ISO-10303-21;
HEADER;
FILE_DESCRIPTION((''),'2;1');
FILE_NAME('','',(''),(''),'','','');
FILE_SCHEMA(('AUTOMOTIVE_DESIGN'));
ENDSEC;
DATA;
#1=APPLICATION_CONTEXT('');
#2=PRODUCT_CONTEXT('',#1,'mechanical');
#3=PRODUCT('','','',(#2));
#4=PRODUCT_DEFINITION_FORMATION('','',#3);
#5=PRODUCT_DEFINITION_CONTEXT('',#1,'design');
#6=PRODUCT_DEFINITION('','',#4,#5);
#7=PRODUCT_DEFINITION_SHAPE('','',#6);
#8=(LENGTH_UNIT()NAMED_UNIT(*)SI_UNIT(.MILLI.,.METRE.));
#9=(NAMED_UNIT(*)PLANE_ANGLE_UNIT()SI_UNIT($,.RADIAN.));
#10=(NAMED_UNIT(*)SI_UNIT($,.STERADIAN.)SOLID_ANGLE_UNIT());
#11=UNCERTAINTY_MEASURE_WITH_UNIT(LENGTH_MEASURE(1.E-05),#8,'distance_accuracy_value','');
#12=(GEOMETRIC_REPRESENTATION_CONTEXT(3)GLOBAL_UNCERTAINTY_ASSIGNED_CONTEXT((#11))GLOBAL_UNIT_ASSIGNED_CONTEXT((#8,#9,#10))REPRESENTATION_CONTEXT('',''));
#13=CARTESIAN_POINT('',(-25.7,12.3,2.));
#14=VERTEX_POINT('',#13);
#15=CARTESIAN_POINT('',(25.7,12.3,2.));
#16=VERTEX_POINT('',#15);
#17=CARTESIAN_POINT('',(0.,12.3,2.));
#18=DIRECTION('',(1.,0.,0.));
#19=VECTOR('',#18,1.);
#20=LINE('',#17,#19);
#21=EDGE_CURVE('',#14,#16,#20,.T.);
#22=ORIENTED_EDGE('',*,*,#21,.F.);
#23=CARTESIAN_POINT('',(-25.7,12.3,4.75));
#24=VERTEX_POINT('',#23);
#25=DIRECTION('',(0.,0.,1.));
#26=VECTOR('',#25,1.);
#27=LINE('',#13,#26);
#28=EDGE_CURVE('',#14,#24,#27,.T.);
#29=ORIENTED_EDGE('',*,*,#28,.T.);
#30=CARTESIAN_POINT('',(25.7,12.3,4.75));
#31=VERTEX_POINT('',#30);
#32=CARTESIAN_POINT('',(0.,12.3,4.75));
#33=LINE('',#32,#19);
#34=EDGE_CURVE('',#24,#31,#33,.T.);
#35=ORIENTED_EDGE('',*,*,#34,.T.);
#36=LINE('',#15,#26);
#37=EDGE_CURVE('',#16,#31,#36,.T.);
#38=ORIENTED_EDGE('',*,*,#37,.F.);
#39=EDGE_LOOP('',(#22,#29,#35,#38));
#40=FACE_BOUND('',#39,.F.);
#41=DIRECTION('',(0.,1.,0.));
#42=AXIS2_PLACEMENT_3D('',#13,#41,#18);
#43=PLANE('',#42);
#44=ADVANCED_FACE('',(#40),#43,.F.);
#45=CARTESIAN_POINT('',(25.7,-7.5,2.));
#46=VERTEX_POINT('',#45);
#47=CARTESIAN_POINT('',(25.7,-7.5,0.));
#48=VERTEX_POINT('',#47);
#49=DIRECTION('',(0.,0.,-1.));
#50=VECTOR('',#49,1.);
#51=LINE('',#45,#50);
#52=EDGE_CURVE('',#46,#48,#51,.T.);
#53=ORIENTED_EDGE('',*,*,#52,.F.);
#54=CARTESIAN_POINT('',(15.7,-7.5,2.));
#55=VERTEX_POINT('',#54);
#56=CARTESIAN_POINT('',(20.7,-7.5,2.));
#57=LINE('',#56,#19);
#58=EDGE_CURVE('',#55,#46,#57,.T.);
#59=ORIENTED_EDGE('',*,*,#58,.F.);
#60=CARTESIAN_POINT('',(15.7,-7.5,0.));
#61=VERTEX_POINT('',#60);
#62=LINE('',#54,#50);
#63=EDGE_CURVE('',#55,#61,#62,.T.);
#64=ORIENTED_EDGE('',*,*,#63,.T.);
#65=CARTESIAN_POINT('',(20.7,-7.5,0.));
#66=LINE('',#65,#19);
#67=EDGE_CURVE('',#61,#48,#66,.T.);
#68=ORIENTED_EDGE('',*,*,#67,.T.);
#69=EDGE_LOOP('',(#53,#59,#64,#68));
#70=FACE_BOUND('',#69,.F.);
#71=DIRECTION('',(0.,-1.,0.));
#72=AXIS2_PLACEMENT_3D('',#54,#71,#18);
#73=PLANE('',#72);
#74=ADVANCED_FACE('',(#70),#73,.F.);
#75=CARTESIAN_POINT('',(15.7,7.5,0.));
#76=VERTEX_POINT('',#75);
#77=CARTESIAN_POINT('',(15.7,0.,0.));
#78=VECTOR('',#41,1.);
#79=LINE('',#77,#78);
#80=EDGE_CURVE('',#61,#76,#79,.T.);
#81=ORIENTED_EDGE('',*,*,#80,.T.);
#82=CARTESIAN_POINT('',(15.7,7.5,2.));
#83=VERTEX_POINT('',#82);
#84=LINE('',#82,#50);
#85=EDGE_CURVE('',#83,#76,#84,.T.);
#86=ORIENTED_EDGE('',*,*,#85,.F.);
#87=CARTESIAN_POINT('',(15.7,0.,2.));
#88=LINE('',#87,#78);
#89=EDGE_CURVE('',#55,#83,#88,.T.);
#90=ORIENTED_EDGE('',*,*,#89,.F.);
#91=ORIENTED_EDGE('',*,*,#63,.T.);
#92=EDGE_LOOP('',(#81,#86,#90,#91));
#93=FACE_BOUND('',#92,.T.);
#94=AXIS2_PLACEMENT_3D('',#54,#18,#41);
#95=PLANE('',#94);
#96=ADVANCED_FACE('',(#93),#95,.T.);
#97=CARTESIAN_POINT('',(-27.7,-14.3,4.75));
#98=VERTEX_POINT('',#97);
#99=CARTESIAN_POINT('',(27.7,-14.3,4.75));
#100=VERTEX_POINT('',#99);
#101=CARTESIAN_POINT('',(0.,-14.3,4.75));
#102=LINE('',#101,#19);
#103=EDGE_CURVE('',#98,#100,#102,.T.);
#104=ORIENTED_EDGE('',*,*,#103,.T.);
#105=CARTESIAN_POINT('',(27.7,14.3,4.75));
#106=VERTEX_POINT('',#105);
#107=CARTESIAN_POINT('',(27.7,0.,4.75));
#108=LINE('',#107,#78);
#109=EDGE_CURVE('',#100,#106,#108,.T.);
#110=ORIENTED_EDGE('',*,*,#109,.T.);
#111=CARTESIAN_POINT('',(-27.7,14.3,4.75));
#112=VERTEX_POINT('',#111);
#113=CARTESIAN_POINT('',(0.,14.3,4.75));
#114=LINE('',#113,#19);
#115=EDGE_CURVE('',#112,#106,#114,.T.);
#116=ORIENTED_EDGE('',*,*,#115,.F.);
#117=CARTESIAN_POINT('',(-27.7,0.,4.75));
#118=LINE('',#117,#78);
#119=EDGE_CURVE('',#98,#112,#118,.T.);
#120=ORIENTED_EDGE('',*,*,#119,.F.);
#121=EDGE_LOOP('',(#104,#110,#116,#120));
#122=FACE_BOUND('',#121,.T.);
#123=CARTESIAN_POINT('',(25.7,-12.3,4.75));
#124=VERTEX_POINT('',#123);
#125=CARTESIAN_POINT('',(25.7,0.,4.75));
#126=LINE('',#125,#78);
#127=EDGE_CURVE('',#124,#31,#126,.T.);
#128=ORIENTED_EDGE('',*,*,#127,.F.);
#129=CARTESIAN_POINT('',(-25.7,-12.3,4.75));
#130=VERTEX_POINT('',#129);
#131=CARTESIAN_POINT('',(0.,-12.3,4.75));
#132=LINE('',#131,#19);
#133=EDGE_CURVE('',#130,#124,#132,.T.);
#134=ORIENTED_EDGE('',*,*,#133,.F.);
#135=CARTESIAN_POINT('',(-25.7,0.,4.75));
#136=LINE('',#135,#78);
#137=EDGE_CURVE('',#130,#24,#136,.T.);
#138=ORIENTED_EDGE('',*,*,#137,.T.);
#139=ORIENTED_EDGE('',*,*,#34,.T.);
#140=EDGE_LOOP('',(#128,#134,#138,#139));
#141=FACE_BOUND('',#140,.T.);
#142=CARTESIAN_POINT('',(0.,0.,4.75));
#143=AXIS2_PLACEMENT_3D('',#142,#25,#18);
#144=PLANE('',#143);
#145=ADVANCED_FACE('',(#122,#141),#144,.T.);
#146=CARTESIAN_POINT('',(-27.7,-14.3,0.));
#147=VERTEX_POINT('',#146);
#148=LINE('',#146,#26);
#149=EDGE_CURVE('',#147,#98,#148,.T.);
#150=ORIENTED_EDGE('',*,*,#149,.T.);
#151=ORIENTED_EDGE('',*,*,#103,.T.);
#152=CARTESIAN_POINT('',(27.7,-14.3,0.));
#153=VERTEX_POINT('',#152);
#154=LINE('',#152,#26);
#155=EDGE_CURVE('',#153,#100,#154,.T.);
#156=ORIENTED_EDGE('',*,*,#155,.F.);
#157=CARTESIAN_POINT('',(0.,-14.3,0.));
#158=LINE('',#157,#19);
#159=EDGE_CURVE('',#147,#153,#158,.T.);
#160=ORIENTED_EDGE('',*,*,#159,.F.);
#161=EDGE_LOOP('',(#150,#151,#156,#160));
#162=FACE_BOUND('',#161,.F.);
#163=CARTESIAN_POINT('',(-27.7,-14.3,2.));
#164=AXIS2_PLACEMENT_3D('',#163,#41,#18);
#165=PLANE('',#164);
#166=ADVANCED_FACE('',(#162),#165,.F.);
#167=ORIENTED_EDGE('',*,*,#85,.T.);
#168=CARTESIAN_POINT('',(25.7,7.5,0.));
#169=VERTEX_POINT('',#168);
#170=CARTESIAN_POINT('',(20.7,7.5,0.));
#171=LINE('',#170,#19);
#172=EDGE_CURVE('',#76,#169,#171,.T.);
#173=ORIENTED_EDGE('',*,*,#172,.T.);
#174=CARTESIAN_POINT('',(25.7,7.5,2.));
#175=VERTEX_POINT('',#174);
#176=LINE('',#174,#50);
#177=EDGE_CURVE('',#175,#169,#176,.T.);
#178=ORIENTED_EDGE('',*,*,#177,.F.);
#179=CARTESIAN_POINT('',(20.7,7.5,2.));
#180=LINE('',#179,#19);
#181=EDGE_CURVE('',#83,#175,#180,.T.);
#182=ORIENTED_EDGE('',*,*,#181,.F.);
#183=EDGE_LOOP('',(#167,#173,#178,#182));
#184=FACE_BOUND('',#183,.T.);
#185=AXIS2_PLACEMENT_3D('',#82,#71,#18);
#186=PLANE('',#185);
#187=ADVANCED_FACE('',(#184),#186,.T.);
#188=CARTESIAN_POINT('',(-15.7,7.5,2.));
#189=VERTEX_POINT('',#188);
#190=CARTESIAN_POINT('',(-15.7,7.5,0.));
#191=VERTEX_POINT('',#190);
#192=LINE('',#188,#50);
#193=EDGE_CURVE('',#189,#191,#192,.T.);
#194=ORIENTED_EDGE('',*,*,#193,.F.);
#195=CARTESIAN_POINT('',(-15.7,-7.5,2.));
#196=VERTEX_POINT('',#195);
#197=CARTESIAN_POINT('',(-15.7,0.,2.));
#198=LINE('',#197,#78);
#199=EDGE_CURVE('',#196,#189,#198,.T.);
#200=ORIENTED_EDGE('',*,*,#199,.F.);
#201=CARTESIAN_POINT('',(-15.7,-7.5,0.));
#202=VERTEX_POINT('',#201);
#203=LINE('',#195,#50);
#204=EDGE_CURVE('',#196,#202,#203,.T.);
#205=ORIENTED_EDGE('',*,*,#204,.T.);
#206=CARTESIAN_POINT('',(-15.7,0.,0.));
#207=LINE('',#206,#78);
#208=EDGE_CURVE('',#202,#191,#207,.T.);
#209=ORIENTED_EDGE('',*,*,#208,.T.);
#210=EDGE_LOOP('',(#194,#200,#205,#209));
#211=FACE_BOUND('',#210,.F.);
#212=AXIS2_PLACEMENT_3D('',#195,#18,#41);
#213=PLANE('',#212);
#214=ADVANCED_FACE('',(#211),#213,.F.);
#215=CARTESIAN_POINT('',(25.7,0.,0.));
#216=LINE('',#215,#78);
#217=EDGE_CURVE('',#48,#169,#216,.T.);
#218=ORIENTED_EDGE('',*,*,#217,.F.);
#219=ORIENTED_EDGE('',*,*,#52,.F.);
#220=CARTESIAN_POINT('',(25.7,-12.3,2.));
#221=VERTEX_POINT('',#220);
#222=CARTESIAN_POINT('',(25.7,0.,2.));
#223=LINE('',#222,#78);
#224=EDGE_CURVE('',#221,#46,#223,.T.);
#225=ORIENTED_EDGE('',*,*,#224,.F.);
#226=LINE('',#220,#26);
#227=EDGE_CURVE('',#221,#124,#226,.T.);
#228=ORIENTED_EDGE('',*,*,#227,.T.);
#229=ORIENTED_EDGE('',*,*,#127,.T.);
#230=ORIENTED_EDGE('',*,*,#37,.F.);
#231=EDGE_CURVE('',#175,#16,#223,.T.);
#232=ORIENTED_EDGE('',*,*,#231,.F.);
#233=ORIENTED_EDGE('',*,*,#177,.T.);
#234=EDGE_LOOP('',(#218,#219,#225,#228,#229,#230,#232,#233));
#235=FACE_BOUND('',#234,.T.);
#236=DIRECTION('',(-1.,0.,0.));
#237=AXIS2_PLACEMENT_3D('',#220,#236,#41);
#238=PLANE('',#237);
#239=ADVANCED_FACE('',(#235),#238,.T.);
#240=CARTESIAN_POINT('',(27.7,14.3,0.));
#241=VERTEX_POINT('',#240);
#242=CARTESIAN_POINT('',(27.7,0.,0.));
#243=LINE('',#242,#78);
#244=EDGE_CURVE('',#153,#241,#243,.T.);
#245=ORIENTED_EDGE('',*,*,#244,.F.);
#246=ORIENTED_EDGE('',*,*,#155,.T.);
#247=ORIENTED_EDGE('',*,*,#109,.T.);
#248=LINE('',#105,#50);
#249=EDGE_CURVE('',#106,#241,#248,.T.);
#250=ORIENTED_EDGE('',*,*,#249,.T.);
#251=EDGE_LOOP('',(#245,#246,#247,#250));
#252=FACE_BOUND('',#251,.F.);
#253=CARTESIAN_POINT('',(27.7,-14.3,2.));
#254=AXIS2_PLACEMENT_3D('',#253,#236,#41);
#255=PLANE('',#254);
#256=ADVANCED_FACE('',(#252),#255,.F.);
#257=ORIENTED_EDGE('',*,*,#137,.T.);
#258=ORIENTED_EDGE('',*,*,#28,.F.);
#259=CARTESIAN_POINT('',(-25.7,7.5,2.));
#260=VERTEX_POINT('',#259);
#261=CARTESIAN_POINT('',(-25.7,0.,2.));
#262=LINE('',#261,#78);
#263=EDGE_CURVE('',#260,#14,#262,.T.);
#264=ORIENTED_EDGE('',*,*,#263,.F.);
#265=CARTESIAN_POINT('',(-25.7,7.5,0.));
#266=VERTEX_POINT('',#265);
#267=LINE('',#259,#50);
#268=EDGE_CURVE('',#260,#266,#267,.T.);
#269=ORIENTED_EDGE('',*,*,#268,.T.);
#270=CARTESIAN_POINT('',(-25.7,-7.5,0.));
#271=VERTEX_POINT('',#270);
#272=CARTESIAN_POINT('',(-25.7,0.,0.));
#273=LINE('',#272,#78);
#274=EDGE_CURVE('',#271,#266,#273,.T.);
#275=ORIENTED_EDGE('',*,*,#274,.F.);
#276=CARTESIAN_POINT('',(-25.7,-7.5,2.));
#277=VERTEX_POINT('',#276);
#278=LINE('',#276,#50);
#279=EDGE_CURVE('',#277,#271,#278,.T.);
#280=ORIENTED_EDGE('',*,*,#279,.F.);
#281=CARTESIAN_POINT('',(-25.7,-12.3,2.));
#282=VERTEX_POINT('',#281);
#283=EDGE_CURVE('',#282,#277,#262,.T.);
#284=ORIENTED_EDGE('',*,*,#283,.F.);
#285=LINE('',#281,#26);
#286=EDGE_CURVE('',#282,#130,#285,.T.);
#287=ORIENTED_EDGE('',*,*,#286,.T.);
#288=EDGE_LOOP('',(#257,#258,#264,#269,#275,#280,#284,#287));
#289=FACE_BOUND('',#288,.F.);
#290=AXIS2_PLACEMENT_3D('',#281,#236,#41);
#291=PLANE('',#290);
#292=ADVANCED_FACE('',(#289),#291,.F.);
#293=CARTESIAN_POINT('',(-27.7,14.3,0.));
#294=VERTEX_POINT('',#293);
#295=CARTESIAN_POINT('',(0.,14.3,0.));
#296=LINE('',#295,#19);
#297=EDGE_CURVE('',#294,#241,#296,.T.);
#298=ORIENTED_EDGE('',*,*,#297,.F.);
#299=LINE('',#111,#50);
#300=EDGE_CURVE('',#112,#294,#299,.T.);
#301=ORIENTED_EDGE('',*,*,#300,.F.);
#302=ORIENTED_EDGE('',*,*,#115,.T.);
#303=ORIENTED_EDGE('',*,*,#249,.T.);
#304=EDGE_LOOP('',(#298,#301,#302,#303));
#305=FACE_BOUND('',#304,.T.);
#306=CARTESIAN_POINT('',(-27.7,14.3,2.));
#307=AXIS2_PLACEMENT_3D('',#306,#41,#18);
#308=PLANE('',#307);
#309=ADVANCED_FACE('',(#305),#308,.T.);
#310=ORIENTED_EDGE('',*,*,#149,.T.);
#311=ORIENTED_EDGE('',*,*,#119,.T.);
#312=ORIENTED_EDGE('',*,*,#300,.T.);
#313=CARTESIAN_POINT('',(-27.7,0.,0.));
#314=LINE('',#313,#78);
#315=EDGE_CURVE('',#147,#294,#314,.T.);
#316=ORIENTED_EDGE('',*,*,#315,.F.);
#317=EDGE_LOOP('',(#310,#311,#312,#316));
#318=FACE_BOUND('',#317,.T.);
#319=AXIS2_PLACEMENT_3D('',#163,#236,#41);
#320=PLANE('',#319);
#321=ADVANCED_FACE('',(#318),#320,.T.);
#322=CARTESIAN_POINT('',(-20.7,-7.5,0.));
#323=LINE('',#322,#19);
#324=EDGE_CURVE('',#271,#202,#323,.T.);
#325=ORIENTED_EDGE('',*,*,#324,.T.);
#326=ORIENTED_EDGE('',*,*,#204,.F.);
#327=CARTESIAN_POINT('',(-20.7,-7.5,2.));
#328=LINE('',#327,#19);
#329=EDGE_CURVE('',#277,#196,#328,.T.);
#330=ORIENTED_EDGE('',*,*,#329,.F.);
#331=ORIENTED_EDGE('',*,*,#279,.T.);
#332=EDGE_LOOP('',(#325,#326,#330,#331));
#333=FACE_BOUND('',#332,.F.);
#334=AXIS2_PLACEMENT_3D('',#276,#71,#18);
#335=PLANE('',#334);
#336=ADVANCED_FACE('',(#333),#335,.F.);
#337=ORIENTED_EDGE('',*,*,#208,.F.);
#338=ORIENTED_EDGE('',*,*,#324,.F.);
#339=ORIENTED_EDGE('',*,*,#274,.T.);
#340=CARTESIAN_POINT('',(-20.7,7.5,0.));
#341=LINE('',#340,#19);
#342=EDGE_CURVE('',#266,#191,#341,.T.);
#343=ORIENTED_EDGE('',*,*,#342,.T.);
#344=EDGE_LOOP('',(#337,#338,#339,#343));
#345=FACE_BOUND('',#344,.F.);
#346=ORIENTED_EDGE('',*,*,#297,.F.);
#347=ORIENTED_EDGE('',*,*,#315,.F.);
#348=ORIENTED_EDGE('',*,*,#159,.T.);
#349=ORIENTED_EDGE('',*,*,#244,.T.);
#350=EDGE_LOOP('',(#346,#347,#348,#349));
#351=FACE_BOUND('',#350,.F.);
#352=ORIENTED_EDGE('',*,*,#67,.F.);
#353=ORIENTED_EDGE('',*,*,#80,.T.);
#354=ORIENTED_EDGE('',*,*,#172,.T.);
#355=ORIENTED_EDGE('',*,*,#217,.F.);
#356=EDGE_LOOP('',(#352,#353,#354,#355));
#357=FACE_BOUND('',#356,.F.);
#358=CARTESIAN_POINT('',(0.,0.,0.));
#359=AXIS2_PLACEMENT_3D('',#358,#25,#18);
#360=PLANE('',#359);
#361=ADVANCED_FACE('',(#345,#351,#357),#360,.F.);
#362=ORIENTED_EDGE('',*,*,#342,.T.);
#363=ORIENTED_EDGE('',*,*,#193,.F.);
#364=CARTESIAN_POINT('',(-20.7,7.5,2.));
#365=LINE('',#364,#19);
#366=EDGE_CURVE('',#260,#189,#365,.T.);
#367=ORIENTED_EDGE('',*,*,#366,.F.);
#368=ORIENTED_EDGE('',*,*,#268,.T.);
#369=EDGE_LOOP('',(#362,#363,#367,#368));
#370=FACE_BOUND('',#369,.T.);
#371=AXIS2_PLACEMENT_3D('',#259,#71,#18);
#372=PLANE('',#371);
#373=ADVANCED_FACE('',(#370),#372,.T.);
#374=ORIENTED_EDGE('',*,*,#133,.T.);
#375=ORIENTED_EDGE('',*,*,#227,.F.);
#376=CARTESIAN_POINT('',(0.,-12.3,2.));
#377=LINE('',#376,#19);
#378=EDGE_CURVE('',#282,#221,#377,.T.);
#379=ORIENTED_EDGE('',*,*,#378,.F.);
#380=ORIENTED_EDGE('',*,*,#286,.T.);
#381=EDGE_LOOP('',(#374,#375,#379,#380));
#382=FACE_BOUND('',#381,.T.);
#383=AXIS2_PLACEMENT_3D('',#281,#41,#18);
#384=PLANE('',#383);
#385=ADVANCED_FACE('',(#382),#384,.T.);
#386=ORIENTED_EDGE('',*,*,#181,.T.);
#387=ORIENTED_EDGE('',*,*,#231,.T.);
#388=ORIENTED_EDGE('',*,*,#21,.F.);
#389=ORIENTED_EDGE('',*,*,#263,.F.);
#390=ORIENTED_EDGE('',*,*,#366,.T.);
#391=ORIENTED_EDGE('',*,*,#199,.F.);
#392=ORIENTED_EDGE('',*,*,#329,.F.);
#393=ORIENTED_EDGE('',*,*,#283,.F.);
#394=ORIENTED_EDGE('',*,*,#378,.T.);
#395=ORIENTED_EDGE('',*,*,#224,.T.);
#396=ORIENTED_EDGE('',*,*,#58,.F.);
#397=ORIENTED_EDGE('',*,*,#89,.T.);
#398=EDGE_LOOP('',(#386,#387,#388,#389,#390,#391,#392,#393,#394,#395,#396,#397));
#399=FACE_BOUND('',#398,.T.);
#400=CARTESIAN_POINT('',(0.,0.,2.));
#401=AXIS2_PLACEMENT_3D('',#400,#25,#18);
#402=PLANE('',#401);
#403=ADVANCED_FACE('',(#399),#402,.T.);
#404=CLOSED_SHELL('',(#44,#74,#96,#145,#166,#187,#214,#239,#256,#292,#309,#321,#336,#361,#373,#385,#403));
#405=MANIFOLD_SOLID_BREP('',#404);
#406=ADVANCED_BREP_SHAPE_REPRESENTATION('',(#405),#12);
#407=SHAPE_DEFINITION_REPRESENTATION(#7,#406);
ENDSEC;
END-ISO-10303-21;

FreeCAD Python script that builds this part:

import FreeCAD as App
import Part
import Sketcher
Q = App.Units.Quantity

doc = App.newDocument("Part")
params = doc.addObject("Spreadsheet::Sheet", "Params")
for row, (alias, value) in enumerate([
    ("sketch1_width", "55.4 mm"),
    ("sketch1_height", "28.6 mm"),
    ("pad1_length", "2 mm"),
    ("sketch2_width", "55.4 mm"),
    ("sketch2_width2", "51.4 mm"),
    ("sketch2_height", "28.6 mm"),
    ("sketch2_height2", "24.6 mm"),
    ("pad2_length", "2.75 mm"),
    ("sketch3_width", "10 mm"),
    ("sketch3_height", "15 mm"),
    ("pocket1_length", "2 mm"),
], start=1):
    params.set(f"A{row}", alias)
    params.set(f"B{row}", "=" + value)
    params.setAlias(f"B{row}", alias)

body = doc.addObject("PartDesign::Body", "Body")

sketch1 = body.newObject("Sketcher::SketchObject", "Sketch")
sketch1.AttachmentSupport = (doc.getObject("XY_Plane"), [""])
sketch1.MapMode = "FlatFace"
sketch1.addGeometry(Part.LineSegment(App.Vector(-28, 14, 0), App.Vector(-28, -14, 0)), False)
sketch1.addGeometry(Part.LineSegment(App.Vector(-28, -14, 0), App.Vector(28, -14, 0)), False)
sketch1.addGeometry(Part.LineSegment(App.Vector(28, -14, 0), App.Vector(28, 14, 0)), False)
sketch1.addGeometry(Part.LineSegment(App.Vector(28, 14, 0), App.Vector(-28, 14, 0)), False)
sketch1.addConstraint(Sketcher.Constraint("Coincident", 0, 2, 1, 1))
sketch1.addConstraint(Sketcher.Constraint("Coincident", 1, 2, 2, 1))
sketch1.addConstraint(Sketcher.Constraint("Coincident", 2, 2, 3, 1))
sketch1.addConstraint(Sketcher.Constraint("Coincident", 3, 2, 0, 1))
sketch1.addConstraint(Sketcher.Constraint("Vertical", 0))
sketch1.addConstraint(Sketcher.Constraint("Horizontal", 1))
sketch1.addConstraint(Sketcher.Constraint("Vertical", 2))
sketch1.addConstraint(Sketcher.Constraint("Horizontal", 3))
sketch1.addConstraint(Sketcher.Constraint("Symmetric", 0, 2, 2, 2, -1, 1))
sketch1.addConstraint(Sketcher.Constraint("DistanceX", 1, 1, 1, 2, Q("55.4 mm")))
sketch1.addConstraint(Sketcher.Constraint("DistanceY", 0, 2, 0, 1, Q("28.6 mm")))
sketch1.setExpression("Constraints[9]", "Params.sketch1_width")
sketch1.setExpression("Constraints[10]", "Params.sketch1_height")
pad1 = body.newObject("PartDesign::Pad", "Pad")
pad1.Profile = sketch1
pad1.setExpression("Length", "Params.pad1_length")

sketch2 = body.newObject("Sketcher::SketchObject", "Sketch001")
sketch2.AttachmentSupport = (doc.getObject("XY_Plane"), [""])
sketch2.MapMode = "FlatFace"
sketch2.AttachmentOffset = App.Placement(App.Vector(0, 0, 2), App.Rotation())
sketch2.addGeometry(Part.LineSegment(App.Vector(-28, 14, 0), App.Vector(-28, -14, 0)), False)
sketch2.addGeometry(Part.LineSegment(App.Vector(-28, -14, 0), App.Vector(28, -14, 0)), False)
sketch2.addGeometry(Part.LineSegment(App.Vector(28, -14, 0), App.Vector(28, 14, 0)), False)
sketch2.addGeometry(Part.LineSegment(App.Vector(28, 14, 0), App.Vector(-28, 14, 0)), False)
sketch2.addGeometry(Part.LineSegment(App.Vector(26, -12, 0), App.Vector(-26, -12, 0)), False)
sketch2.addGeometry(Part.LineSegment(App.Vector(-26, -12, 0), App.Vector(-26, 12, 0)), False)
sketch2.addGeometry(Part.LineSegment(App.Vector(-26, 12, 0), App.Vector(26, 12, 0)), False)
sketch2.addGeometry(Part.LineSegment(App.Vector(26, 12, 0), App.Vector(26, -12, 0)), False)
sketch2.addConstraint(Sketcher.Constraint("Coincident", 0, 2, 1, 1))
sketch2.addConstraint(Sketcher.Constraint("Coincident", 1, 2, 2, 1))
sketch2.addConstraint(Sketcher.Constraint("Coincident", 2, 2, 3, 1))
sketch2.addConstraint(Sketcher.Constraint("Coincident", 3, 2, 0, 1))
sketch2.addConstraint(Sketcher.Constraint("Coincident", 4, 2, 5, 1))
sketch2.addConstraint(Sketcher.Constraint("Coincident", 5, 2, 6, 1))
sketch2.addConstraint(Sketcher.Constraint("Coincident", 6, 2, 7, 1))
sketch2.addConstraint(Sketcher.Constraint("Coincident", 7, 2, 4, 1))
sketch2.addConstraint(Sketcher.Constraint("Vertical", 0))
sketch2.addConstraint(Sketcher.Constraint("Horizontal", 1))
sketch2.addConstraint(Sketcher.Constraint("Vertical", 2))
sketch2.addConstraint(Sketcher.Constraint("Horizontal", 3))
sketch2.addConstraint(Sketcher.Constraint("Horizontal", 4))
sketch2.addConstraint(Sketcher.Constraint("Vertical", 5))
sketch2.addConstraint(Sketcher.Constraint("Horizontal", 6))
sketch2.addConstraint(Sketcher.Constraint("Vertical", 7))
sketch2.addConstraint(Sketcher.Constraint("Symmetric", 0, 2, 2, 2, -1, 1))
sketch2.addConstraint(Sketcher.Constraint("Symmetric", 4, 2, 6, 2, -1, 1))
sketch2.addConstraint(Sketcher.Constraint("DistanceX", 1, 1, 1, 2, Q("55.4 mm")))
sketch2.addConstraint(Sketcher.Constraint("DistanceX", 4, 2, 4, 1, Q("51.4 mm")))
sketch2.addConstraint(Sketcher.Constraint("DistanceY", 0, 2, 0, 1, Q("28.6 mm")))
sketch2.addConstraint(Sketcher.Constraint("DistanceY", 5, 1, 5, 2, Q("24.6 mm")))
sketch2.setExpression("Constraints[18]", "Params.sketch2_width")
sketch2.setExpression("Constraints[19]", "Params.sketch2_width2")
sketch2.setExpression("Constraints[20]", "Params.sketch2_height")
sketch2.setExpression("Constraints[21]", "Params.sketch2_height2")
pad2 = body.newObject("PartDesign::Pad", "Pad001")
pad2.Profile = sketch2
pad2.setExpression("Length", "Params.pad2_length")

sketch3 = body.newObject("Sketcher::SketchObject", "Sketch002")
sketch3.AttachmentSupport = (doc.getObject("XY_Plane"), [""])
sketch3.MapMode = "FlatFace"
sketch3.AttachmentOffset = App.Placement(App.Vector(0, 0, 2), App.Rotation())
sketch3.addGeometry(Part.LineSegment(App.Vector(-26, 8, 0), App.Vector(-26, -8, 0)), False)
sketch3.addGeometry(Part.LineSegment(App.Vector(-26, -8, 0), App.Vector(-16, -8, 0)), False)
sketch3.addGeometry(Part.LineSegment(App.Vector(-16, -8, 0), App.Vector(-16, 8, 0)), False)
sketch3.addGeometry(Part.LineSegment(App.Vector(-16, 8, 0), App.Vector(-26, 8, 0)), False)
sketch3.addGeometry(Part.LineSegment(App.Vector(16, 8, 0), App.Vector(16, -8, 0)), False)
sketch3.addGeometry(Part.LineSegment(App.Vector(16, -8, 0), App.Vector(26, -8, 0)), False)
sketch3.addGeometry(Part.LineSegment(App.Vector(26, -8, 0), App.Vector(26, 8, 0)), False)
sketch3.addGeometry(Part.LineSegment(App.Vector(26, 8, 0), App.Vector(16, 8, 0)), False)
sketch3.addConstraint(Sketcher.Constraint("Coincident", 0, 2, 1, 1))
sketch3.addConstraint(Sketcher.Constraint("Coincident", 1, 2, 2, 1))
sketch3.addConstraint(Sketcher.Constraint("Coincident", 2, 2, 3, 1))
sketch3.addConstraint(Sketcher.Constraint("Coincident", 3, 2, 0, 1))
sketch3.addConstraint(Sketcher.Constraint("Coincident", 4, 2, 5, 1))
sketch3.addConstraint(Sketcher.Constraint("Coincident", 5, 2, 6, 1))
sketch3.addConstraint(Sketcher.Constraint("Coincident", 6, 2, 7, 1))
sketch3.addConstraint(Sketcher.Constraint("Coincident", 7, 2, 4, 1))
sketch3.addConstraint(Sketcher.Constraint("Vertical", 0))
sketch3.addConstraint(Sketcher.Constraint("Horizontal", 1))
sketch3.addConstraint(Sketcher.Constraint("Vertical", 2))
sketch3.addConstraint(Sketcher.Constraint("Horizontal", 3))
sketch3.addConstraint(Sketcher.Constraint("Vertical", 4))
sketch3.addConstraint(Sketcher.Constraint("Horizontal", 5))
sketch3.addConstraint(Sketcher.Constraint("Vertical", 6))
sketch3.addConstraint(Sketcher.Constraint("Horizontal", 7))
sketch3.addConstraint(Sketcher.Constraint("Symmetric", 2, 2, 4, 2, -1, 1))
sketch3.addConstraint(Sketcher.Constraint("Symmetric", 0, 2, 6, 2, -1, 1))
sketch3.addConstraint(Sketcher.Constraint("Horizontal", 1, 2, 4, 2))
sketch3.addConstraint(Sketcher.Constraint("DistanceX", 1, 1, 1, 2, Q("10 mm")))
sketch3.addConstraint(Sketcher.Constraint("DistanceY", 0, 2, 0, 1, Q("15 mm")))
sketch3.addConstraint(Sketcher.Constraint("DistanceX", 0, 2, -1, 1, Q("25.7 mm")))
sketch3.setExpression("Constraints[19]", "Params.sketch3_width")
sketch3.setExpression("Constraints[20]", "Params.sketch3_height")
pocket1 = body.newObject("PartDesign::Pocket", "Pocket")
pocket1.Profile = sketch3
pocket1.setExpression("Length", "Params.pocket1_length")

doc.recompute()
